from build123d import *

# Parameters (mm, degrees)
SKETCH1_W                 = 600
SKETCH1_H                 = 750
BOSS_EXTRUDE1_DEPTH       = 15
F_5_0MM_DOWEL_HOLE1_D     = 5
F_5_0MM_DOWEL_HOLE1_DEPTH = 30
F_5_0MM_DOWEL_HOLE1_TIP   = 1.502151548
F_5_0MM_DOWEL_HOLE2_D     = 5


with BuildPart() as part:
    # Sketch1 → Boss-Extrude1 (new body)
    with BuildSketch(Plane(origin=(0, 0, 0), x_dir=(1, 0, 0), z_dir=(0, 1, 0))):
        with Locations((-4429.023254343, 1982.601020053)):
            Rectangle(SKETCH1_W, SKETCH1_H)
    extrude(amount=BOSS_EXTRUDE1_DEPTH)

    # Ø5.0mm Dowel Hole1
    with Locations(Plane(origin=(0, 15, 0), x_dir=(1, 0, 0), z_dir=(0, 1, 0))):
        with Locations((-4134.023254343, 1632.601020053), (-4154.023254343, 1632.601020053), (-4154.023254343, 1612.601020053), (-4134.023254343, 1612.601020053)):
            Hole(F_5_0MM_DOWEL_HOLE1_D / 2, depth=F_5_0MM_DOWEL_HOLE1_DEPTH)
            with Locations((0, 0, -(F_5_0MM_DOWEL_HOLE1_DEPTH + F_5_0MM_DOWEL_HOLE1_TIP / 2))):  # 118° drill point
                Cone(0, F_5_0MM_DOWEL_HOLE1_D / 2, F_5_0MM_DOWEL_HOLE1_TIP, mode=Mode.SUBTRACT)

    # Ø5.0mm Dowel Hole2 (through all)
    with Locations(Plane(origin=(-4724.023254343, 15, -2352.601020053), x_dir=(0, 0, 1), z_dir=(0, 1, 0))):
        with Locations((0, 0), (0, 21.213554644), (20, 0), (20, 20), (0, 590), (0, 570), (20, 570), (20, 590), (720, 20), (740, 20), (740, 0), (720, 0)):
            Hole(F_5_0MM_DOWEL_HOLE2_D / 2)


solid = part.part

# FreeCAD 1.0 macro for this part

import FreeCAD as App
import Part
import Sketcher

V = App.Vector
Q = App.Units.Quantity

doc = App.newDocument("Part")
params = doc.addObject("Spreadsheet::Sheet", "Params")
for row, (alias, value) in enumerate([
    ("sketch1_width", "600 mm"),
    ("sketch1_height", "750 mm"),
    ("pad1_length", "15 mm"),
    ("sketch2_diameter", "5 mm"),
    ("hole_diameter", "5 mm"),
    ("hole_depth", "30 mm"),
    ("sketch3_diameter", "5 mm"),
    ("hole2_diameter", "5 mm"),
], start=1):
    params.set(f"A{row}", alias)
    params.set(f"B{row}", "=" + value)
    params.setAlias(f"B{row}", alias)

body = doc.addObject("PartDesign::Body", "Body")

# Sketch on XZ plane
sketch1 = body.newObject("Sketcher::SketchObject", "Sketch")
sketch1.AttachmentSupport = (doc.getObject("XZ_Plane"), [""])
sketch1.MapMode = "FlatFace"
sketch1.addGeometry(Part.LineSegment(V(-4729, -2358, 0), V(-4729, -1608, 0)), False)
sketch1.addGeometry(Part.LineSegment(V(-4729, -1608, 0), V(-4129, -1608, 0)), False)
sketch1.addGeometry(Part.LineSegment(V(-4129, -1608, 0), V(-4129, -2358, 0)), False)
sketch1.addGeometry(Part.LineSegment(V(-4129, -2358, 0), V(-4729, -2358, 0)), False)
sketch1.addConstraint(Sketcher.Constraint("Coincident", 0, 2, 1, 1))
sketch1.addConstraint(Sketcher.Constraint("Coincident", 1, 2, 2, 1))
sketch1.addConstraint(Sketcher.Constraint("Coincident", 2, 2, 3, 1))
sketch1.addConstraint(Sketcher.Constraint("Coincident", 3, 2, 0, 1))
sketch1.addConstraint(Sketcher.Constraint("Vertical", 0))
sketch1.addConstraint(Sketcher.Constraint("Horizontal", 1))
sketch1.addConstraint(Sketcher.Constraint("Vertical", 2))
sketch1.addConstraint(Sketcher.Constraint("Horizontal", 3))
sketch1.addConstraint(Sketcher.Constraint("DistanceX", 1, 1, 1, 2, Q("600 mm")))
sketch1.addConstraint(Sketcher.Constraint("DistanceY", 0, 1, 0, 2, Q("750 mm")))
sketch1.addConstraint(Sketcher.Constraint("DistanceY", 0, 2, -1, 1, Q("1607.60102 mm")))
sketch1.addConstraint(Sketcher.Constraint("DistanceX", 0, 2, -1, 1, Q("4729.023254 mm")))
sketch1.setExpression("Constraints[8]", "Params.sketch1_width")
sketch1.setExpression("Constraints[9]", "Params.sketch1_height")
pad1 = body.newObject("PartDesign::Pad", "Pad")
pad1.Profile = sketch1
pad1.setExpression("Length", "Params.pad1_length")
pad1.Reversed = True

# Sketch on XZ plane
sketch2 = body.newObject("Sketcher::SketchObject", "Sketch001")
sketch2.AttachmentSupport = (doc.getObject("XZ_Plane"), [""])
sketch2.MapMode = "FlatFace"
sketch2.AttachmentOffset = App.Placement(V(0, 0, -15), App.Rotation())
sketch2.addGeometry(Part.Circle(V(-4134, -1632.6, 0), V(0, 0, 1), 2.5), False)
sketch2.addGeometry(Part.Circle(V(-4154, -1632.6, 0), V(0, 0, 1), 2.5), False)
sketch2.addGeometry(Part.Circle(V(-4154, -1612.6, 0), V(0, 0, 1), 2.5), False)
sketch2.addGeometry(Part.Circle(V(-4134, -1612.6, 0), V(0, 0, 1), 2.5), False)
sketch2.addConstraint(Sketcher.Constraint("Equal", 0, 1))
sketch2.addConstraint(Sketcher.Constraint("Equal", 1, 2))
sketch2.addConstraint(Sketcher.Constraint("Equal", 2, 3))
sketch2.addConstraint(Sketcher.Constraint("Horizontal", 0, 3, 1, 3))
sketch2.addConstraint(Sketcher.Constraint("Horizontal", 2, 3, 3, 3))
sketch2.addConstraint(Sketcher.Constraint("Vertical", 1, 3, 2, 3))
sketch2.addConstraint(Sketcher.Constraint("Vertical", 0, 3, 3, 3))
sketch2.addConstraint(Sketcher.Constraint("Diameter", 0, Q("5 mm")))
sketch2.addConstraint(Sketcher.Constraint("DistanceX", 1, 3, 0, 3, Q("20 mm")))
sketch2.addConstraint(Sketcher.Constraint("DistanceY", 1, 3, 2, 3, Q("20 mm")))
sketch2.addConstraint(Sketcher.Constraint("DistanceY", 0, 3, -1, 1, Q("1632.60102 mm")))
sketch2.addConstraint(Sketcher.Constraint("DistanceX", 0, 3, -1, 1, Q("4134.023254 mm")))
sketch2.setExpression("Constraints[7]", "Params.sketch2_diameter")
doc.recompute()
hole = body.newObject("PartDesign::Hole", "Hole")
hole.Profile = sketch2
hole.ThreadType = "None"
hole.setExpression("Diameter", "Params.hole_diameter")
hole.DepthType = "Dimension"
hole.setExpression("Depth", "Params.hole_depth")
hole.DrillPoint = "Angled"
hole.DrillPointAngle = 118
hole.Reversed = True

# Sketch on XZ plane
sketch3 = body.newObject("Sketcher::SketchObject", "Sketch002")
sketch3.AttachmentSupport = (doc.getObject("XZ_Plane"), [""])
sketch3.MapMode = "FlatFace"
sketch3.AttachmentOffset = App.Placement(V(0, 0, -15), App.Rotation())
sketch3.addGeometry(Part.Circle(V(-4724, -2352.6, 0), V(0, 0, 1), 2.5), False)
sketch3.addGeometry(Part.Circle(V(-4702.8, -2352.6, 0), V(0, 0, 1), 2.5), False)
sketch3.addGeometry(Part.Circle(V(-4724, -2332.6, 0), V(0, 0, 1), 2.5), False)
sketch3.addGeometry(Part.Circle(V(-4704, -2332.6, 0), V(0, 0, 1), 2.5), False)
sketch3.addGeometry(Part.Circle(V(-4134, -2352.6, 0), V(0, 0, 1), 2.5), False)
sketch3.addGeometry(Part.Circle(V(-4154, -2352.6, 0), V(0, 0, 1), 2.5), False)
sketch3.addGeometry(Part.Circle(V(-4154, -2332.6, 0), V(0, 0, 1), 2.5), False)
sketch3.addGeometry(Part.Circle(V(-4134, -2332.6, 0), V(0, 0, 1), 2.5), False)
sketch3.addGeometry(Part.Circle(V(-4704, -1632.6, 0), V(0, 0, 1), 2.5), False)
sketch3.addGeometry(Part.Circle(V(-4704, -1612.6, 0), V(0, 0, 1), 2.5), False)
sketch3.addGeometry(Part.Circle(V(-4724, -1612.6, 0), V(0, 0, 1), 2.5), False)
sketch3.addGeometry(Part.Circle(V(-4724, -1632.6, 0), V(0, 0, 1), 2.5), False)
sketch3.addConstraint(Sketcher.Constraint("Equal", 0, 1))
sketch3.addConstraint(Sketcher.Constraint("Equal", 1, 2))
sketch3.addConstraint(Sketcher.Constraint("Equal", 2, 3))
sketch3.addConstraint(Sketcher.Constraint("Equal", 3, 4))
sketch3.addConstraint(Sketcher.Constraint("Equal", 4, 5))
sketch3.addConstraint(Sketcher.Constraint("Equal", 5, 6))
sketch3.addConstraint(Sketcher.Constraint("Equal", 6, 7))
sketch3.addConstraint(Sketcher.Constraint("Equal", 7, 8))
sketch3.addConstraint(Sketcher.Constraint("Equal", 8, 9))
sketch3.addConstraint(Sketcher.Constraint("Equal", 9, 10))
sketch3.addConstraint(Sketcher.Constraint("Equal", 10, 11))
sketch3.addConstraint(Sketcher.Constraint("Horizontal", 0, 3, 1, 3))
sketch3.addConstraint(Sketcher.Constraint("Horizontal", 2, 3, 3, 3))
sketch3.addConstraint(Sketcher.Constraint("Horizontal", 1, 3, 4, 3))
sketch3.addConstraint(Sketcher.Constraint("Horizontal", 4, 3, 5, 3))
sketch3.addConstraint(Sketcher.Constraint("Horizontal", 3, 3, 6, 3))
sketch3.addConstraint(Sketcher.Constraint("Horizontal", 6, 3, 7, 3))
sketch3.addConstraint(Sketcher.Constraint("Horizontal", 9, 3, 10, 3))
sketch3.addConstraint(Sketcher.Constraint("Horizontal", 8, 3, 11, 3))
sketch3.addConstraint(Sketcher.Constraint("Vertical", 0, 3, 2, 3))
sketch3.addConstraint(Sketcher.Constraint("Vertical", 5, 3, 6, 3))
sketch3.addConstraint(Sketcher.Constraint("Vertical", 4, 3, 7, 3))
sketch3.addConstraint(Sketcher.Constraint("Vertical", 3, 3, 8, 3))
sketch3.addConstraint(Sketcher.Constraint("Vertical", 8, 3, 9, 3))
sketch3.addConstraint(Sketcher.Constraint("Vertical", 2, 3, 10, 3))
sketch3.addConstraint(Sketcher.Constraint("Vertical", 10, 3, 11, 3))
sketch3.addConstraint(Sketcher.Constraint("Diameter", 0, Q("5 mm")))
sketch3.addConstraint(Sketcher.Constraint("DistanceY", 0, 3, 2, 3, Q("20 mm")))
sketch3.addConstraint(Sketcher.Constraint("DistanceX", 2, 3, 3, 3, Q("20 mm")))
sketch3.addConstraint(Sketcher.Constraint("DistanceX", 3, 3, 4, 3, Q("570 mm")))
sketch3.addConstraint(Sketcher.Constraint("DistanceX", 5, 3, 4, 3, Q("20 mm")))
sketch3.addConstraint(Sketcher.Constraint("DistanceY", 3, 3, 8, 3, Q("700 mm")))
sketch3.addConstraint(Sketcher.Constraint("DistanceY", 8, 3, 9, 3, Q("20 mm")))
sketch3.addConstraint(Sketcher.Constraint("DistanceX", 1, 3, -1, 1, Q("4702.8097 mm")))
sketch3.addConstraint(Sketcher.Constraint("DistanceY", 0, 3, -1, 1, Q("2352.60102 mm")))
sketch3.addConstraint(Sketcher.Constraint("DistanceX", 0, 3, -1, 1, Q("4724.023254 mm")))
sketch3.setExpression("Constraints[26]", "Params.sketch3_diameter")
doc.recompute()
hole2 = body.newObject("PartDesign::Hole", "Hole001")
hole2.Profile = sketch3
hole2.ThreadType = "None"
hole2.setExpression("Diameter", "Params.hole2_diameter")
hole2.DepthType = "ThroughAll"
hole2.Reversed = True

doc.recompute()
